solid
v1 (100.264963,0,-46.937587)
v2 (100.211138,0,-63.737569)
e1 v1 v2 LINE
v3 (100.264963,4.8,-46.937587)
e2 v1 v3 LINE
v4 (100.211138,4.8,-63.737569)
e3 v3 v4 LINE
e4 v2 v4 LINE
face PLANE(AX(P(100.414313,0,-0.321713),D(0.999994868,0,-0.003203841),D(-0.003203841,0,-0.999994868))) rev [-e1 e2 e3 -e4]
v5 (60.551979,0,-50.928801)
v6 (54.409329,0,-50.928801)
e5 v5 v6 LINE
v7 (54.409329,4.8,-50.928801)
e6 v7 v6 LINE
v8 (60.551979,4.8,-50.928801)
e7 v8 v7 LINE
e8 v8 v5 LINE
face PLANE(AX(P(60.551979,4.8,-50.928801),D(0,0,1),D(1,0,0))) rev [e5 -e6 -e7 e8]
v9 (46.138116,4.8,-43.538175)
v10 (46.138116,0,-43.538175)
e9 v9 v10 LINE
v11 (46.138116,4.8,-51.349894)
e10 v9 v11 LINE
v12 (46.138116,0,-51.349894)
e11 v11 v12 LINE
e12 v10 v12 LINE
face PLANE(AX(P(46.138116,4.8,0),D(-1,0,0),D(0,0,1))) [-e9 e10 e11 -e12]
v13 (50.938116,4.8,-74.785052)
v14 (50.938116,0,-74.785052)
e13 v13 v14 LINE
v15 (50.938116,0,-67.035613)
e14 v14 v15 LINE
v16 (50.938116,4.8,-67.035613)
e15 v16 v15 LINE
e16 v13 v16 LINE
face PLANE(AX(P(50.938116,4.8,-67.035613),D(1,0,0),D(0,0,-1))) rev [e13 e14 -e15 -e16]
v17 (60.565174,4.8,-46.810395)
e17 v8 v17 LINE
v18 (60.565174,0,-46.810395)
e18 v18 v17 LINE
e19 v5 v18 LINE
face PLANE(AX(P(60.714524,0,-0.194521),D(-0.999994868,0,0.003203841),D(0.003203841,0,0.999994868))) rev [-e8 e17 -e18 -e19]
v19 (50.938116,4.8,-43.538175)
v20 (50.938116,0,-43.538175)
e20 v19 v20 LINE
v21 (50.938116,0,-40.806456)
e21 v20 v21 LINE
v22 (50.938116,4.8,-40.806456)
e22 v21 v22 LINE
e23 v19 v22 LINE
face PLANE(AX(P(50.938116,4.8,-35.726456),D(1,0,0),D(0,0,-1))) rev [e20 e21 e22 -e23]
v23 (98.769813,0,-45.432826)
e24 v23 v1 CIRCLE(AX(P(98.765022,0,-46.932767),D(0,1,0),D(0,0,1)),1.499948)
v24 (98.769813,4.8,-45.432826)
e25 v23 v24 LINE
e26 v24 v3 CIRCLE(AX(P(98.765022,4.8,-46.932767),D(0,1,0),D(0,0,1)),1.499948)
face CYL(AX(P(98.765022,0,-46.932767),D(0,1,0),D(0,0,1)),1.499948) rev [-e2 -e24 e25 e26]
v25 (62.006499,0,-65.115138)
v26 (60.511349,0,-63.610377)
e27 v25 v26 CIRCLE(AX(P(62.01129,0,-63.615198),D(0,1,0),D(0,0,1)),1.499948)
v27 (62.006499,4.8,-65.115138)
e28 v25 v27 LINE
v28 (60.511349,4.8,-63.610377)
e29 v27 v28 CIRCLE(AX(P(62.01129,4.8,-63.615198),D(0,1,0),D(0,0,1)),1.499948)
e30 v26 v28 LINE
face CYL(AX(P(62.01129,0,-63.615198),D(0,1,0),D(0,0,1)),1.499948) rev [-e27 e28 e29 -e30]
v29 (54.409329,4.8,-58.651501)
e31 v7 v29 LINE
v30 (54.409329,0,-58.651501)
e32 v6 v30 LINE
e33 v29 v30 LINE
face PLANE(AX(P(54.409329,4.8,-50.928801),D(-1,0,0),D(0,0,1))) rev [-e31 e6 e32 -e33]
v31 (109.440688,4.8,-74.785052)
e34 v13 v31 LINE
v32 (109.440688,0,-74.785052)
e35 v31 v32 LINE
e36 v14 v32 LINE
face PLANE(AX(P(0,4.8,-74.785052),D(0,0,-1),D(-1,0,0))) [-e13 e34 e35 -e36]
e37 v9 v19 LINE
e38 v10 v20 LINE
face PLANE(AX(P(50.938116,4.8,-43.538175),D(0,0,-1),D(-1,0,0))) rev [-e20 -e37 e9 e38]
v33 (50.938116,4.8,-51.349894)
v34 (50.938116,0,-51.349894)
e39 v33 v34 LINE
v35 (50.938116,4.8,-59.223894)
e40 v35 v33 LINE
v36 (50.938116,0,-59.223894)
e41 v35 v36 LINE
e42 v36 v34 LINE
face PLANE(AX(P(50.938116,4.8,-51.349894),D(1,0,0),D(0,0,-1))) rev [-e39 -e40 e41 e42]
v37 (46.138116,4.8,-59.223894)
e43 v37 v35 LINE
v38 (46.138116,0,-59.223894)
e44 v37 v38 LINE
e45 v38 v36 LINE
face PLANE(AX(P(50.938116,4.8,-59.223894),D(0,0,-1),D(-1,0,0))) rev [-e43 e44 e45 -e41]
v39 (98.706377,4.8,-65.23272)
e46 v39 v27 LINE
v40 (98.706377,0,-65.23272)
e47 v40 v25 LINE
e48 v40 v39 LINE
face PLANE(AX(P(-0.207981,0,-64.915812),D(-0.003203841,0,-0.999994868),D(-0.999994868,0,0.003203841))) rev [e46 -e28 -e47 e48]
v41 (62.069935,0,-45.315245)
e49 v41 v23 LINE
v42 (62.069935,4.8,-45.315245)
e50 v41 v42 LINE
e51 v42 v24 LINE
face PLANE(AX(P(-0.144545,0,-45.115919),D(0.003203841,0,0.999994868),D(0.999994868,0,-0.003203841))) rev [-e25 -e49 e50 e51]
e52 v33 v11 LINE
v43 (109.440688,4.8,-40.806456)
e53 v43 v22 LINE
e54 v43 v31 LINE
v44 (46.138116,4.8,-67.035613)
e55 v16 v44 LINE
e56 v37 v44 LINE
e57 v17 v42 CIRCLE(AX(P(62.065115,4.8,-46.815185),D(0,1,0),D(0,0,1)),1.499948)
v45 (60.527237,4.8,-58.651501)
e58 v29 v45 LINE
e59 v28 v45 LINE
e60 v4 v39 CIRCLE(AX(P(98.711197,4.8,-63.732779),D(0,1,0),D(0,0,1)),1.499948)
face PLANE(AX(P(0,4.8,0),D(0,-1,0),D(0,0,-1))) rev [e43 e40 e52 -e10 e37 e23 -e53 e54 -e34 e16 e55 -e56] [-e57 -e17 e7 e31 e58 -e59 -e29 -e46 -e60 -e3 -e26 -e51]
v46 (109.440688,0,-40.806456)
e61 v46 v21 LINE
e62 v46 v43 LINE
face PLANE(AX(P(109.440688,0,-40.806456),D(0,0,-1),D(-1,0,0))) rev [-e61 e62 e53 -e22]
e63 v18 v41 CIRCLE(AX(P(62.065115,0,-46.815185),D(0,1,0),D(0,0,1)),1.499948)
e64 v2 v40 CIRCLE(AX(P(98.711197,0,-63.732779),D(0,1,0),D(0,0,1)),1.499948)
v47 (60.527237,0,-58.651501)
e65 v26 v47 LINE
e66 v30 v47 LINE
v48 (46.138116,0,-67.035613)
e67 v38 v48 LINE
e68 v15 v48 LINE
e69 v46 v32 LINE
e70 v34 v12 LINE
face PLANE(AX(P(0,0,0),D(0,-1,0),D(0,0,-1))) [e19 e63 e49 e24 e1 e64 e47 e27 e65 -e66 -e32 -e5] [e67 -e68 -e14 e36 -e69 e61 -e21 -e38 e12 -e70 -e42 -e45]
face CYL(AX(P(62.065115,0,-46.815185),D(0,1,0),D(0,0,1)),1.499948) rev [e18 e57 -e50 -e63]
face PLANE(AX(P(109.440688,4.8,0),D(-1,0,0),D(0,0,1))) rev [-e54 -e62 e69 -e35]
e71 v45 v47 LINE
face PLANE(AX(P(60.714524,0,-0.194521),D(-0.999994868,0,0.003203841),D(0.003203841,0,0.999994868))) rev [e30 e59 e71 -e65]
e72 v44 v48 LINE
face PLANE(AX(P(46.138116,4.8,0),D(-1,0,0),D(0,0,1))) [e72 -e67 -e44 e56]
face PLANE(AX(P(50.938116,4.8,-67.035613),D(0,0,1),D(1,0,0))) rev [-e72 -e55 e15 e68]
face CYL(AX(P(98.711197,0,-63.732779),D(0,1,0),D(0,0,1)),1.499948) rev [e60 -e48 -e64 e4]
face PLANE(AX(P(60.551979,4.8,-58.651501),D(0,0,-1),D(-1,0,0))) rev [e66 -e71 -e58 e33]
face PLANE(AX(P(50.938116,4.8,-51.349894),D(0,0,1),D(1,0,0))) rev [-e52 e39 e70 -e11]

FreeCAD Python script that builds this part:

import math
import FreeCAD as App
import Part
import Sketcher

V = App.Vector
Q = App.Units.Quantity


def add_polygon(sketch, points):
    """Adds a closed chain of lines whose ends are joined by coincident constraints."""
    first, n = sketch.GeometryCount, len(points)
    for a, b in zip(points, points[1:] + points[:1]):
        sketch.addGeometry(Part.LineSegment(App.Vector(*a, 0), App.Vector(*b, 0)), False)
    for i in range(n):
        sketch.addConstraint(Sketcher.Constraint("Coincident", first + i, 2, first + (i + 1) % n, 1))

doc = App.newDocument("Part")
body = doc.addObject("PartDesign::Body", "Body")

# Sketch on XZ plane
sketch1 = body.newObject("Sketcher::SketchObject", "Sketch")
sketch1.AttachmentSupport = (doc.getObject("XZ_Plane"), [""])
sketch1.MapMode = "FlatFace"
add_polygon(sketch1, [(0, -102), (0, 0), (127, 0), (127, -102)])  # lines 0-3
sketch1.addConstraint(Sketcher.Constraint("Vertical", 0))
sketch1.addConstraint(Sketcher.Constraint("Horizontal", 1))
sketch1.addConstraint(Sketcher.Constraint("Vertical", 2))
sketch1.addConstraint(Sketcher.Constraint("Horizontal", 3))
sketch1.addConstraint(Sketcher.Constraint("Coincident", 0, 2, -1, 1))
sketch1.addConstraint(Sketcher.Constraint("DistanceX", 1, 1, 1, 2, Q("5 in")))
sketch1.addConstraint(Sketcher.Constraint("DistanceY", 0, 1, 0, 2, Q("4 in")))
pad1 = body.newObject("PartDesign::Pad", "Pad")
pad1.Profile = sketch1
pad1.Length = 4.8
pad1.Reversed = True

# Sketch on XZ plane
sketch2 = body.newObject("Sketcher::SketchObject", "Sketch001")
sketch2.AttachmentSupport = (doc.getObject("XZ_Plane"), [""])
sketch2.MapMode = "FlatFace"
sketch2.AttachmentOffset = App.Placement(V(0, 0, -4.8), App.Rotation())
sketch2.addGeometry(Part.LineSegment(V(62.1, -45.3, 0), V(98.8, -45.4, 0)), False)
sketch2.addGeometry(Part.ArcOfCircle(Part.Circle(V(98.8, -46.9, 0), V(0, 0, 1), 1.5), math.radians(0), math.radians(90)), False)
sketch2.addGeometry(Part.LineSegment(V(100.3, -46.9, 0), V(100.2, -63.7, 0)), False)
sketch2.addGeometry(Part.ArcOfCircle(Part.Circle(V(98.7, -63.7, 0), V(0, 0, 1), 1.5), math.radians(-90), math.radians(0)), False)
sketch2.addGeometry(Part.LineSegment(V(98.7, -65.2, 0), V(62, -65.1, 0)), False)
sketch2.addGeometry(Part.ArcOfCircle(Part.Circle(V(62, -63.6, 0), V(0, 0, 1), 1.5), math.radians(180), math.radians(270)), False)
sketch2.addGeometry(Part.LineSegment(V(60.5, -63.6, 0), V(60.6, -46.8, 0)), False)
sketch2.addGeometry(Part.ArcOfCircle(Part.Circle(V(62.1, -46.8, 0), V(0, 0, 1), 1.5), math.radians(90), math.radians(180)), False)
sketch2.addConstraint(Sketcher.Constraint("Coincident", 0, 2, 1, 2))
sketch2.addConstraint(Sketcher.Constraint("Coincident", 1, 1, 2, 1))
sketch2.addConstraint(Sketcher.Constraint("Coincident", 2, 2, 3, 2))
sketch2.addConstraint(Sketcher.Constraint("Coincident", 3, 1, 4, 1))
sketch2.addConstraint(Sketcher.Constraint("Coincident", 4, 2, 5, 2))
sketch2.addConstraint(Sketcher.Constraint("Coincident", 5, 1, 6, 1))
sketch2.addConstraint(Sketcher.Constraint("Coincident", 6, 2, 7, 2))
sketch2.addConstraint(Sketcher.Constraint("Coincident", 7, 1, 0, 1))
sketch2.addConstraint(Sketcher.Constraint("Equal", 1, 3))
sketch2.addConstraint(Sketcher.Constraint("Equal", 3, 5))
sketch2.addConstraint(Sketcher.Constraint("Equal", 5, 7))
sketch2.addConstraint(Sketcher.Constraint("Perpendicular", 0, 2))
sketch2.addConstraint(Sketcher.Constraint("Perpendicular", 2, 4))
sketch2.addConstraint(Sketcher.Constraint("Perpendicular", 4, 6))
sketch2.addConstraint(Sketcher.Constraint("Equal", 0, 4))
sketch2.addConstraint(Sketcher.Constraint("Equal", 2, 6))
sketch2.addConstraint(Sketcher.Constraint("Radius", 1, 1.499948))
sketch2.addConstraint(Sketcher.Constraint("DistanceX", -1, 1, 4, 2, 62.006499))
sketch2.addConstraint(Sketcher.Constraint("DistanceX", 7, 3, 0, 2, 36.704698))
sketch2.addConstraint(Sketcher.Constraint("DistanceY", 1, 1, 7, 3, 0.122402))
sketch2.addConstraint(Sketcher.Constraint("DistanceX", 4, 2, 3, 3, 36.704698))
sketch2.addConstraint(Sketcher.Constraint("DistanceY", 3, 3, 5, 1, 0.122402))
sketch2.addConstraint(Sketcher.Constraint("Distance", 2, 16.800068))
sketch2.addConstraint(Sketcher.Constraint("DistanceY", 3, 3, -1, 1, 63.732779))
sketch2.addConstraint(Sketcher.Constraint("DistanceX", -1, 1, 5, 3, 62.01129))
sketch2.addConstraint(Sketcher.Constraint("DistanceY", 2, 2, -1, 1, 63.737569))
sketch2.addConstraint(Sketcher.Constraint("DistanceY", 4, 2, -1, 1, 65.115138))
sketch2.addConstraint(Sketcher.Constraint("DistanceX", 3, 1, 3, 3, 0.004821))
pocket1 = body.newObject("PartDesign::Pocket", "Pocket")
pocket1.Profile = sketch2
pocket1.Type = "ThroughAll"
pocket1.Reversed = True

# Sketch on XZ plane
sketch3 = body.newObject("Sketcher::SketchObject", "Sketch002")
sketch3.AttachmentSupport = (doc.getObject("XZ_Plane"), [""])
sketch3.MapMode = "FlatFace"
add_polygon(sketch3, [(0, 0), (0, -102), (127, -102), (127, 0)])  # lines 0-3
add_polygon(sketch3, [(109, -75), (46, -75), (46, -36), (109, -36)])  # lines 4-7
sketch3.addConstraint(Sketcher.Constraint("Vertical", 0))
sketch3.addConstraint(Sketcher.Constraint("Horizontal", 1))
sketch3.addConstraint(Sketcher.Constraint("Vertical", 2))
sketch3.addConstraint(Sketcher.Constraint("Horizontal", 3))
sketch3.addConstraint(Sketcher.Constraint("Horizontal", 4))
sketch3.addConstraint(Sketcher.Constraint("Vertical", 5))
sketch3.addConstraint(Sketcher.Constraint("Horizontal", 6))
sketch3.addConstraint(Sketcher.Constraint("Vertical", 7))
sketch3.addConstraint(Sketcher.Constraint("Coincident", 3, 2, -1, 1))
sketch3.addConstraint(Sketcher.Constraint("DistanceX", 1, 1, 1, 2, Q("5 in")))
sketch3.addConstraint(Sketcher.Constraint("DistanceY", 0, 2, 0, 1, Q("4 in")))
sketch3.addConstraint(Sketcher.Constraint("DistanceX", 4, 2, 4, 1, 63.302572))
sketch3.addConstraint(Sketcher.Constraint("DistanceY", 5, 1, 5, 2, 39.058596))
sketch3.addConstraint(Sketcher.Constraint("DistanceY", 4, 2, -1, 1, 74.785052))
sketch3.addConstraint(Sketcher.Constraint("DistanceX", -1, 1, 4, 2, 46.138116))
pocket2 = body.newObject("PartDesign::Pocket", "Pocket001")
pocket2.Profile = sketch3
pocket2.Type = "ThroughAll"

# Sketch on XZ plane
sketch4 = body.newObject("Sketcher::SketchObject", "Sketch003")
sketch4.AttachmentSupport = (doc.getObject("XZ_Plane"), [""])
sketch4.MapMode = "FlatFace"
add_polygon(sketch4, [(46.1, -35.7), (46.1, -43.5), (50.9, -43.5), (50.9, -35.7)])  # lines 0-3
add_polygon(sketch4, [(46.1, -51.3), (46.1, -59.2), (50.9, -59.2), (50.9, -51.3)])  # lines 4-7
add_polygon(sketch4, [(46.1, -67), (46.1, -74.8), (50.9, -74.8), (50.9, -67)])  # lines 8-11
sketch4.addConstraint(Sketcher.Constraint("Vertical", 0))
sketch4.addConstraint(Sketcher.Constraint("Horizontal", 1))
sketch4.addConstraint(Sketcher.Constraint("Vertical", 2))
sketch4.addConstraint(Sketcher.Constraint("Horizontal", 3))
sketch4.addConstraint(Sketcher.Constraint("Vertical", 4))
sketch4.addConstraint(Sketcher.Constraint("Horizontal", 5))
sketch4.addConstraint(Sketcher.Constraint("Vertical", 6))
sketch4.addConstraint(Sketcher.Constraint("Horizontal", 7))
sketch4.addConstraint(Sketcher.Constraint("Vertical", 8))
sketch4.addConstraint(Sketcher.Constraint("Horizontal", 9))
sketch4.addConstraint(Sketcher.Constraint("Vertical", 10))
sketch4.addConstraint(Sketcher.Constraint("Horizontal", 11))
sketch4.addConstraint(Sketcher.Constraint("Vertical", 3, 2, 4, 2))
sketch4.addConstraint(Sketcher.Constraint("Vertical", 2, 2, 5, 2))
sketch4.addConstraint(Sketcher.Constraint("Vertical", 7, 2, 8, 2))
sketch4.addConstraint(Sketcher.Constraint("Vertical", 6, 2, 9, 2))
sketch4.addConstraint(Sketcher.Constraint("DistanceY", 4, 2, 4, 1, Q("0.31 in")))
sketch4.addConstraint(Sketcher.Constraint("DistanceX", 1, 1, 1, 2, 4.8))
sketch4.addConstraint(Sketcher.Constraint("DistanceY", 0, 2, 0, 1, 7.811719))
sketch4.addConstraint(Sketcher.Constraint("DistanceY", 8, 2, 8, 1, 7.749438))
sketch4.addConstraint(Sketcher.Constraint("DistanceY", 8, 2, -1, 1, 74.785052))
sketch4.addConstraint(Sketcher.Constraint("DistanceY", 4, 2, 0, 2, 15.685719))
sketch4.addConstraint(Sketcher.Constraint("DistanceY", 10, 2, 5, 2, 7.811719))
sketch4.addConstraint(Sketcher.Constraint("DistanceX", -1, 1, 0, 2, 46.138116))
pocket3 = body.newObject("PartDesign::Pocket", "Pocket002")
pocket3.Profile = sketch4
pocket3.Type = "ThroughAll"

# Sketch on XZ plane
sketch5 = body.newObject("Sketcher::SketchObject", "Sketch004")
sketch5.AttachmentSupport = (doc.getObject("XZ_Plane"), [""])
sketch5.MapMode = "FlatFace"
add_polygon(sketch5, [(54, -51), (54, -59), (61, -59), (61, -51)])  # lines 0-3
sketch5.addConstraint(Sketcher.Constraint("Vertical", 0))
sketch5.addConstraint(Sketcher.Constraint("Horizontal", 1))
sketch5.addConstraint(Sketcher.Constraint("Vertical", 2))
sketch5.addConstraint(Sketcher.Constraint("Horizontal", 3))
sketch5.addConstraint(Sketcher.Constraint("DistanceY", 0, 2, 0, 1, 7.7227))
sketch5.addConstraint(Sketcher.Constraint("DistanceX", 1, 1, 1, 2, 6.14265))
sketch5.addConstraint(Sketcher.Constraint("DistanceY", 0, 2, -1, 1, 58.651501))
sketch5.addConstraint(Sketcher.Constraint("DistanceX", -1, 1, 0, 2, 54.409329))
pocket4 = body.newObject("PartDesign::Pocket", "Pocket003")
pocket4.Profile = sketch5
pocket4.Type = "ThroughAll"

# Sketch on XZ plane
sketch6 = body.newObject("Sketcher::SketchObject", "Sketch005")
sketch6.AttachmentSupport = (doc.getObject("XZ_Plane"), [""])
sketch6.MapMode = "FlatFace"
sketch6.AttachmentOffset = App.Placement(V(0, 0, -4.8), App.Rotation())
add_polygon(sketch6, [(51, -41), (51, -36), (109, -36), (109, -41)])  # lines 0-3
sketch6.addConstraint(Sketcher.Constraint("Vertical", 0))
sketch6.addConstraint(Sketcher.Constraint("Horizontal", 1))
sketch6.addConstraint(Sketcher.Constraint("Vertical", 2))
sketch6.addConstraint(Sketcher.Constraint("Horizontal", 3))
sketch6.addConstraint(Sketcher.Constraint("DistanceY", 0, 1, 0, 2, Q("0.2 in")))
sketch6.addConstraint(Sketcher.Constraint("DistanceX", 1, 1, 1, 2, 58.502572))
sketch6.addConstraint(Sketcher.Constraint("DistanceX", -1, 1, 0, 2, 50.938116))
sketch6.addConstraint(Sketcher.Constraint("DistanceY", 0, 2, -1, 1, 35.726456))
pocket5 = body.newObject("PartDesign::Pocket", "Pocket004")
pocket5.Profile = sketch6
pocket5.Type = "ThroughAll"
pocket5.Reversed = True

doc.recompute()
